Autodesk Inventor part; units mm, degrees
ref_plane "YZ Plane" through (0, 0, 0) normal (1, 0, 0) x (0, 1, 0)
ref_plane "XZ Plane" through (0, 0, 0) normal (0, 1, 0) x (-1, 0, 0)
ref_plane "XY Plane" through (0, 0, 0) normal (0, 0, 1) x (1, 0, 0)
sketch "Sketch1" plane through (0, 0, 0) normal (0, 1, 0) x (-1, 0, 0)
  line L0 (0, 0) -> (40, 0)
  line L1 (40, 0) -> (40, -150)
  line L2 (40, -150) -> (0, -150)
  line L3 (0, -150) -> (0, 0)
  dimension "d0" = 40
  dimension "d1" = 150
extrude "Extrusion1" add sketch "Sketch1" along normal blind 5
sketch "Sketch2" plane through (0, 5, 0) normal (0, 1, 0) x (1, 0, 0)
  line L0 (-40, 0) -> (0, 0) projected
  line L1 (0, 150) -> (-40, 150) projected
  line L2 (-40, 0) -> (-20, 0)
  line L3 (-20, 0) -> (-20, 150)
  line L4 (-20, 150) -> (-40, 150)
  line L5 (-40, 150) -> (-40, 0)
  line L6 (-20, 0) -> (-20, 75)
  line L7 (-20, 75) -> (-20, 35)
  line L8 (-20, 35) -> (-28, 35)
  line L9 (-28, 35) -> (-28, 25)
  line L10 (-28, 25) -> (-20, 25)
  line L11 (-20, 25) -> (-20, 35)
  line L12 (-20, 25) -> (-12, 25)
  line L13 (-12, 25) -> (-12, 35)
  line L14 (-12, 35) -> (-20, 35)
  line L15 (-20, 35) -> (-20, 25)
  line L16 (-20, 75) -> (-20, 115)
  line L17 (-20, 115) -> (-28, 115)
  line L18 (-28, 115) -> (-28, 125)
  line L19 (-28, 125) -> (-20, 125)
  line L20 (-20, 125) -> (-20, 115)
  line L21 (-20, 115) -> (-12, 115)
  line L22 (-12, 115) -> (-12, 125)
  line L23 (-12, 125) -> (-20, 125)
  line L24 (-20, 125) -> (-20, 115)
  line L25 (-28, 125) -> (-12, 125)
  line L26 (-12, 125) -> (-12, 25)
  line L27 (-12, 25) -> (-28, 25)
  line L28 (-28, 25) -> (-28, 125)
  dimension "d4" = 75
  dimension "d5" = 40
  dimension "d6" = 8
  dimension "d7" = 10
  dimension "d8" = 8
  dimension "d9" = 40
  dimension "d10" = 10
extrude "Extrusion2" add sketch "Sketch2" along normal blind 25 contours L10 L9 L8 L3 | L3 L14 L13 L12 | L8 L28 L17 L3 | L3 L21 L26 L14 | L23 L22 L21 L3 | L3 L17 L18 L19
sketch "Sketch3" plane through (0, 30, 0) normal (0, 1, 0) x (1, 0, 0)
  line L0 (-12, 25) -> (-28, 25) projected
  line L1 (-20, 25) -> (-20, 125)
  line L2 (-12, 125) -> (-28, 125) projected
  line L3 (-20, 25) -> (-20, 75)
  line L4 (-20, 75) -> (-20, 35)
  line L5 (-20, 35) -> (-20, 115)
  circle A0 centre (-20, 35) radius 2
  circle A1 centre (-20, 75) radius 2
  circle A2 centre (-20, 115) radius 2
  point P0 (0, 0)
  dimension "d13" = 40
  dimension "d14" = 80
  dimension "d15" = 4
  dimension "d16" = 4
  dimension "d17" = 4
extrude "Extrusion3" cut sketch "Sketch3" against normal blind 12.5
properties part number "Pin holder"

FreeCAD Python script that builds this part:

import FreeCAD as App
import Part
import Sketcher
Q = App.Units.Quantity

doc = App.newDocument("Part")
body = doc.addObject("PartDesign::Body", "Body")

# Sketch on XZ plane
sketch1 = body.newObject("Sketcher::SketchObject", "Sketch")
sketch1.AttachmentSupport = (doc.getObject("XZ_Plane"), [""])
sketch1.MapMode = "FlatFace"
sketch1.addGeometry(Part.LineSegment(App.Vector(-40, 0, 0), App.Vector(0, 0, 0)), False)
sketch1.addGeometry(Part.LineSegment(App.Vector(0, 0, 0), App.Vector(0, -150, 0)), False)
sketch1.addGeometry(Part.LineSegment(App.Vector(0, -150, 0), App.Vector(-40, -150, 0)), False)
sketch1.addGeometry(Part.LineSegment(App.Vector(-40, -150, 0), App.Vector(-40, 0, 0)), False)
sketch1.addConstraint(Sketcher.Constraint("Coincident", 0, 2, 1, 1))
sketch1.addConstraint(Sketcher.Constraint("Coincident", 1, 2, 2, 1))
sketch1.addConstraint(Sketcher.Constraint("Coincident", 2, 2, 3, 1))
sketch1.addConstraint(Sketcher.Constraint("Coincident", 3, 2, 0, 1))
sketch1.addConstraint(Sketcher.Constraint("Horizontal", 0))
sketch1.addConstraint(Sketcher.Constraint("Vertical", 1))
sketch1.addConstraint(Sketcher.Constraint("Horizontal", 2))
sketch1.addConstraint(Sketcher.Constraint("Vertical", 3))
sketch1.addConstraint(Sketcher.Constraint("Coincident", 0, 2, -1, 1))
sketch1.addConstraint(Sketcher.Constraint("DistanceX", 0, 1, 0, 2, Q("40 mm")))
sketch1.addConstraint(Sketcher.Constraint("DistanceY", 1, 2, 1, 1, Q("150 mm")))
pad1 = body.newObject("PartDesign::Pad", "Pad")
pad1.Profile = sketch1
pad1.Length = 5
pad1.Reversed = True

# Sketch on XZ plane
sketch2 = body.newObject("Sketcher::SketchObject", "Sketch001")
sketch2.AttachmentSupport = (doc.getObject("XZ_Plane"), [""])
sketch2.MapMode = "FlatFace"
sketch2.AttachmentOffset = App.Placement(App.Vector(0, 0, -5), App.Rotation())
sketch2.addGeometry(Part.LineSegment(App.Vector(-28, -25, 0), App.Vector(-12, -25, 0)), False)
sketch2.addGeometry(Part.LineSegment(App.Vector(-12, -25, 0), App.Vector(-12, -125, 0)), False)
sketch2.addGeometry(Part.LineSegment(App.Vector(-12, -125, 0), App.Vector(-28, -125, 0)), False)
sketch2.addGeometry(Part.LineSegment(App.Vector(-28, -125, 0), App.Vector(-28, -25, 0)), False)
sketch2.addConstraint(Sketcher.Constraint("Coincident", 0, 2, 1, 1))
sketch2.addConstraint(Sketcher.Constraint("Coincident", 1, 2, 2, 1))
sketch2.addConstraint(Sketcher.Constraint("Coincident", 2, 2, 3, 1))
sketch2.addConstraint(Sketcher.Constraint("Coincident", 3, 2, 0, 1))
sketch2.addConstraint(Sketcher.Constraint("Horizontal", 0))
sketch2.addConstraint(Sketcher.Constraint("Vertical", 1))
sketch2.addConstraint(Sketcher.Constraint("Horizontal", 2))
sketch2.addConstraint(Sketcher.Constraint("Vertical", 3))
sketch2.addConstraint(Sketcher.Constraint("DistanceX", 0, 1, 0, 2, Q("16 mm")))
sketch2.addConstraint(Sketcher.Constraint("DistanceY", 1, 2, 1, 1, Q("100 mm")))
sketch2.addConstraint(Sketcher.Constraint("DistanceX", 0, 2, -1, 1, Q("12 mm")))
sketch2.addConstraint(Sketcher.Constraint("DistanceY", 0, 2, -1, 1, Q("25 mm")))
pad2 = body.newObject("PartDesign::Pad", "Pad001")
pad2.Profile = sketch2
pad2.Length = 25
pad2.Reversed = True

# Sketch on XZ plane
sketch3 = body.newObject("Sketcher::SketchObject", "Sketch002")
sketch3.AttachmentSupport = (doc.getObject("XZ_Plane"), [""])
sketch3.MapMode = "FlatFace"
sketch3.AttachmentOffset = App.Placement(App.Vector(0, 0, -30), App.Rotation())
sketch3.addGeometry(Part.Circle(App.Vector(-20, -35, 0), App.Vector(0, 0, 1), 2), False)
sketch3.addGeometry(Part.Circle(App.Vector(-20, -115, 0), App.Vector(0, 0, 1), 2), False)
sketch3.addGeometry(Part.Circle(App.Vector(-20, -75, 0), App.Vector(0, 0, 1), 2), False)
sketch3.addConstraint(Sketcher.Constraint("Equal", 0, 1))
sketch3.addConstraint(Sketcher.Constraint("Equal", 1, 2))
sketch3.addConstraint(Sketcher.Constraint("Vertical", 0, 3, 1, 3))
sketch3.addConstraint(Sketcher.Constraint("Vertical", 1, 3, 2, 3))
sketch3.addConstraint(Sketcher.Constraint("Diameter", 0, Q("4 mm")))
sketch3.addConstraint(Sketcher.Constraint("DistanceY", 1, 3, 0, 3, Q("80 mm")))
sketch3.addConstraint(Sketcher.Constraint("DistanceY", 2, 3, 0, 3, Q("40 mm")))
sketch3.addConstraint(Sketcher.Constraint("DistanceX", 0, 3, -1, 1, Q("20 mm")))
sketch3.addConstraint(Sketcher.Constraint("DistanceY", 0, 3, -1, 1, Q("35 mm")))
pocket1 = body.newObject("PartDesign::Pocket", "Pocket")
pocket1.Profile = sketch3
pocket1.Length = 12.5
pocket1.Reversed = True

doc.recompute()
